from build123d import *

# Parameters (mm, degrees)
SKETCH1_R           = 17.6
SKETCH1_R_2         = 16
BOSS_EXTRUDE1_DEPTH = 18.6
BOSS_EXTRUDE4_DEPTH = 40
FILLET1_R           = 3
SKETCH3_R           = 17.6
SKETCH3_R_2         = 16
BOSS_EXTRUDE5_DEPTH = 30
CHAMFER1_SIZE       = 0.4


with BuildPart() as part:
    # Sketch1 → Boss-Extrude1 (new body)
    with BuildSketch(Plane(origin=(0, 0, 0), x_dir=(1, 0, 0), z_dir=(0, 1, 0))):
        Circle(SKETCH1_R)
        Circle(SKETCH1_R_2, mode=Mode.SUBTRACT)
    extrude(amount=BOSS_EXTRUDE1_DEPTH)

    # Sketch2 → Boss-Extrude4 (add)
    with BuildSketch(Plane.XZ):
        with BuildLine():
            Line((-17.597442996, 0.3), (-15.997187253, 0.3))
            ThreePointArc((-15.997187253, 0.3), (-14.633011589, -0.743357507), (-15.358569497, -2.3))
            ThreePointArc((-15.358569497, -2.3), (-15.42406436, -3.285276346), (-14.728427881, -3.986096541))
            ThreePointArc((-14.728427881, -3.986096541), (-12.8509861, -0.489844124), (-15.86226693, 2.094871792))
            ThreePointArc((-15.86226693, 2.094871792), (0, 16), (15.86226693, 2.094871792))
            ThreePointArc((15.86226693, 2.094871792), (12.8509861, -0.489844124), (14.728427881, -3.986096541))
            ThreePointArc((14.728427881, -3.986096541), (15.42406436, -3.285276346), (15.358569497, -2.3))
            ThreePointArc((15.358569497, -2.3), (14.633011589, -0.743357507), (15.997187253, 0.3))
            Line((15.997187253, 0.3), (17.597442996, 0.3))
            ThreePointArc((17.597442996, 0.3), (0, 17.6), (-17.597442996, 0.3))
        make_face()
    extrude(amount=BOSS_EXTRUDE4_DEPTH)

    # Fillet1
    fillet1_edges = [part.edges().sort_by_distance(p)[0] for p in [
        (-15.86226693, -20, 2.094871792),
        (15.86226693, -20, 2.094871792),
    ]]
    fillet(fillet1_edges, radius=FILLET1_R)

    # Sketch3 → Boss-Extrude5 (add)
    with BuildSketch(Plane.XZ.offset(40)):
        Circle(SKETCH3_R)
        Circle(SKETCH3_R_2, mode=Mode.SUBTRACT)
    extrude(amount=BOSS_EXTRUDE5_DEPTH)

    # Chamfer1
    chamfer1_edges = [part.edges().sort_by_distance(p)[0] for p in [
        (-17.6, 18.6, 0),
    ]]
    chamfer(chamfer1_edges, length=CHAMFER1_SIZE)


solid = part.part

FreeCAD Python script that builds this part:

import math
import FreeCAD as App
import Part
import Sketcher
from FreeCAD import Vector


def edges_at(feature, points):
    """Names of the edges that pass closest to the given points."""
    edges = feature.Shape.Edges
    near = lambda p: min(range(len(edges)), key=lambda i: edges[i].distToShape(Part.Vertex(*p))[0])
    return sorted({f"Edge{near(p) + 1}" for p in points})

doc = App.newDocument("Part")
body = doc.addObject("PartDesign::Body", "Body")

# Sketch on XZ plane
sketch1 = doc.addObject("Sketcher::SketchObject", "Sketch")
body.addObject(sketch1)
sketch1.AttachmentSupport = (doc.XZ_Plane, [""])
sketch1.MapMode = "FlatFace"
sketch1.addGeometry([
    Part.Circle(Vector(0, 0, 0), Vector(0, 0, 1), 17.6),
    Part.Circle(Vector(0, 0, 0), Vector(0, 0, 1), 16),
], False)
sketch1.addConstraint([
    Sketcher.Constraint("Coincident", 0, 3, -1, 1),
    Sketcher.Constraint("Coincident", 1, 3, -1, 1),
    Sketcher.Constraint("Diameter", 1, 32.0),
    Sketcher.Constraint("Diameter", 0, 35.2),
])
pad1 = doc.addObject("PartDesign::Pad", "Pad")
body.addObject(pad1)
pad1.Profile = sketch1
pad1.Length = 18.6
pad1.Reversed = True

# Sketch on XZ plane
sketch2 = doc.addObject("Sketcher::SketchObject", "Sketch001")
body.addObject(sketch2)
sketch2.AttachmentSupport = (doc.XZ_Plane, [""])
sketch2.MapMode = "FlatFace"
sketch2.addGeometry([
    Part.LineSegment(Vector(-17.597443, 0.3, 0), Vector(-15.997187, 0.3, 0)),  # 0
    Part.ArcOfCircle(Part.Circle(Vector(-15.964161, -1.070317, 0), Vector(0, 0, 1), 1.370715), math.radians(-63.780794), math.radians(91.380648)),  # 1
    Part.ArcOfCircle(Part.Circle(Vector(-14.3, -2.865182, 0), Vector(0, 0, 1), 1.2), math.radians(151.90175), math.radians(249.082505)),  # 2
    Part.ArcOfCircle(Part.Circle(Vector(-15.964161, -1.070317, 0), Vector(0, 0, 1), 3.166829), math.radians(-67.032347), math.radians(88.156174)),  # 3
    Part.ArcOfCircle(Part.Circle(Vector(0, 0, 0), Vector(0, 0, 1), 16), math.radians(7.523307), math.radians(172.476693)),  # 4
    Part.ArcOfCircle(Part.Circle(Vector(15.964161, -1.070317, 0), Vector(0, 0, 1), 3.166829), math.radians(91.843826), math.radians(247.032347)),  # 5
    Part.ArcOfCircle(Part.Circle(Vector(14.3, -2.865182, 0), Vector(0, 0, 1), 1.2), math.radians(-69.082505), math.radians(28.09825)),  # 6
    Part.ArcOfCircle(Part.Circle(Vector(15.964161, -1.070317, 0), Vector(0, 0, 1), 1.370715), math.radians(88.619352), math.radians(243.780794)),  # 7
    Part.LineSegment(Vector(15.997187, 0.3, 0), Vector(17.597443, 0.3, 0)),  # 8
    Part.ArcOfCircle(Part.Circle(Vector(0, 0, 0), Vector(0, 0, 1), 17.6), math.radians(0.97668), math.radians(179.02332)),  # 9
], False)
sketch2.addConstraint([
    Sketcher.Constraint("Coincident", 0, 2, 1, 2),
    Sketcher.Constraint("Coincident", 1, 1, 2, 1),
    Sketcher.Constraint("Coincident", 2, 2, 3, 1),
    Sketcher.Constraint("Coincident", 3, 2, 4, 2),
    Sketcher.Constraint("Coincident", 4, 1, 5, 1),
    Sketcher.Constraint("Coincident", 5, 2, 6, 1),
    Sketcher.Constraint("Coincident", 6, 2, 7, 2),
    Sketcher.Constraint("Coincident", 7, 1, 8, 1),
    Sketcher.Constraint("Coincident", 8, 2, 9, 1),
    Sketcher.Constraint("Coincident", 9, 2, 0, 1),
    Sketcher.Constraint("Horizontal", 0),
    Sketcher.Constraint("Horizontal", 8),
    Sketcher.Constraint("Coincident", 4, 3, -1, 1),
    Sketcher.Constraint("Coincident", 9, 3, -1, 1),
    Sketcher.Constraint("Coincident", 3, 3, 1, 3),
    Sketcher.Constraint("Coincident", 7, 3, 5, 3),
    Sketcher.Constraint("Equal", 3, 5),
    Sketcher.Constraint("Equal", 2, 6),
    Sketcher.Constraint("Equal", 1, 7),
    Sketcher.Constraint("Symmetric", 1, 3, 5, 3, -2),
    Sketcher.Constraint("Symmetric", 2, 3, 6, 3, -2),
    Sketcher.Constraint("Horizontal", 0, 2, 7, 1),
    Sketcher.Constraint("Radius", 4, 16.0),
    Sketcher.Constraint("Radius", 2, 1.2),
    Sketcher.Constraint("Radius", 9, 17.6),
    Sketcher.Constraint("DistanceX", 2, 3, -1, 1, 14.3),
    Sketcher.Constraint("DistanceY", -1, 1, 0, 2, 0.3),
    Sketcher.Constraint("DistanceY", 1, 1, -1, 1, 2.3),
    Sketcher.Constraint("Radius", 3, 3.166829),
    Sketcher.Constraint("Radius", 1, 1.370715),
    Sketcher.Constraint("DistanceX", 0, 1, 0, 2, 1.600256),
    Sketcher.Constraint("DistanceX", 1, 3, -1, 1, 15.964161),
])
pad2 = doc.addObject("PartDesign::Pad", "Pad001")
body.addObject(pad2)
pad2.Profile = sketch2
pad2.Length = 40
doc.recompute()

fillet = doc.addObject("PartDesign::Fillet", "Fillet")
body.addObject(fillet)
fillet.Base = (pad2, edges_at(pad2, [(-15.862, -20, 2.095), (15.862, -20, 2.095)]))
fillet.Radius = 3

# Sketch on XZ plane
sketch3 = doc.addObject("Sketcher::SketchObject", "Sketch002")
body.addObject(sketch3)
sketch3.AttachmentSupport = (doc.XZ_Plane, [""])
sketch3.MapMode = "FlatFace"
sketch3.AttachmentOffset = App.Placement(Vector(0, 0, 40), App.Rotation())
sketch3.addGeometry([
    Part.Circle(Vector(0, 0, 0), Vector(0, 0, 1), 17.6),
    Part.Circle(Vector(0, 0, 0), Vector(0, 0, 1), 16),
], False)
sketch3.addConstraint([
    Sketcher.Constraint("Coincident", 0, 3, -1, 1),
    Sketcher.Constraint("Coincident", 1, 3, -1, 1),
    Sketcher.Constraint("Diameter", 1, 32.0),
    Sketcher.Constraint("Diameter", 0, 35.2),
])
pad3 = doc.addObject("PartDesign::Pad", "Pad002")
body.addObject(pad3)
pad3.Profile = sketch3
pad3.Length = 30
doc.recompute()

chamfer = doc.addObject("PartDesign::Chamfer", "Chamfer")
body.addObject(chamfer)
chamfer.Base = (pad3, edges_at(pad3, [(-17.6, 18.6, 0)]))
chamfer.Size = 0.4

doc.recompute()
